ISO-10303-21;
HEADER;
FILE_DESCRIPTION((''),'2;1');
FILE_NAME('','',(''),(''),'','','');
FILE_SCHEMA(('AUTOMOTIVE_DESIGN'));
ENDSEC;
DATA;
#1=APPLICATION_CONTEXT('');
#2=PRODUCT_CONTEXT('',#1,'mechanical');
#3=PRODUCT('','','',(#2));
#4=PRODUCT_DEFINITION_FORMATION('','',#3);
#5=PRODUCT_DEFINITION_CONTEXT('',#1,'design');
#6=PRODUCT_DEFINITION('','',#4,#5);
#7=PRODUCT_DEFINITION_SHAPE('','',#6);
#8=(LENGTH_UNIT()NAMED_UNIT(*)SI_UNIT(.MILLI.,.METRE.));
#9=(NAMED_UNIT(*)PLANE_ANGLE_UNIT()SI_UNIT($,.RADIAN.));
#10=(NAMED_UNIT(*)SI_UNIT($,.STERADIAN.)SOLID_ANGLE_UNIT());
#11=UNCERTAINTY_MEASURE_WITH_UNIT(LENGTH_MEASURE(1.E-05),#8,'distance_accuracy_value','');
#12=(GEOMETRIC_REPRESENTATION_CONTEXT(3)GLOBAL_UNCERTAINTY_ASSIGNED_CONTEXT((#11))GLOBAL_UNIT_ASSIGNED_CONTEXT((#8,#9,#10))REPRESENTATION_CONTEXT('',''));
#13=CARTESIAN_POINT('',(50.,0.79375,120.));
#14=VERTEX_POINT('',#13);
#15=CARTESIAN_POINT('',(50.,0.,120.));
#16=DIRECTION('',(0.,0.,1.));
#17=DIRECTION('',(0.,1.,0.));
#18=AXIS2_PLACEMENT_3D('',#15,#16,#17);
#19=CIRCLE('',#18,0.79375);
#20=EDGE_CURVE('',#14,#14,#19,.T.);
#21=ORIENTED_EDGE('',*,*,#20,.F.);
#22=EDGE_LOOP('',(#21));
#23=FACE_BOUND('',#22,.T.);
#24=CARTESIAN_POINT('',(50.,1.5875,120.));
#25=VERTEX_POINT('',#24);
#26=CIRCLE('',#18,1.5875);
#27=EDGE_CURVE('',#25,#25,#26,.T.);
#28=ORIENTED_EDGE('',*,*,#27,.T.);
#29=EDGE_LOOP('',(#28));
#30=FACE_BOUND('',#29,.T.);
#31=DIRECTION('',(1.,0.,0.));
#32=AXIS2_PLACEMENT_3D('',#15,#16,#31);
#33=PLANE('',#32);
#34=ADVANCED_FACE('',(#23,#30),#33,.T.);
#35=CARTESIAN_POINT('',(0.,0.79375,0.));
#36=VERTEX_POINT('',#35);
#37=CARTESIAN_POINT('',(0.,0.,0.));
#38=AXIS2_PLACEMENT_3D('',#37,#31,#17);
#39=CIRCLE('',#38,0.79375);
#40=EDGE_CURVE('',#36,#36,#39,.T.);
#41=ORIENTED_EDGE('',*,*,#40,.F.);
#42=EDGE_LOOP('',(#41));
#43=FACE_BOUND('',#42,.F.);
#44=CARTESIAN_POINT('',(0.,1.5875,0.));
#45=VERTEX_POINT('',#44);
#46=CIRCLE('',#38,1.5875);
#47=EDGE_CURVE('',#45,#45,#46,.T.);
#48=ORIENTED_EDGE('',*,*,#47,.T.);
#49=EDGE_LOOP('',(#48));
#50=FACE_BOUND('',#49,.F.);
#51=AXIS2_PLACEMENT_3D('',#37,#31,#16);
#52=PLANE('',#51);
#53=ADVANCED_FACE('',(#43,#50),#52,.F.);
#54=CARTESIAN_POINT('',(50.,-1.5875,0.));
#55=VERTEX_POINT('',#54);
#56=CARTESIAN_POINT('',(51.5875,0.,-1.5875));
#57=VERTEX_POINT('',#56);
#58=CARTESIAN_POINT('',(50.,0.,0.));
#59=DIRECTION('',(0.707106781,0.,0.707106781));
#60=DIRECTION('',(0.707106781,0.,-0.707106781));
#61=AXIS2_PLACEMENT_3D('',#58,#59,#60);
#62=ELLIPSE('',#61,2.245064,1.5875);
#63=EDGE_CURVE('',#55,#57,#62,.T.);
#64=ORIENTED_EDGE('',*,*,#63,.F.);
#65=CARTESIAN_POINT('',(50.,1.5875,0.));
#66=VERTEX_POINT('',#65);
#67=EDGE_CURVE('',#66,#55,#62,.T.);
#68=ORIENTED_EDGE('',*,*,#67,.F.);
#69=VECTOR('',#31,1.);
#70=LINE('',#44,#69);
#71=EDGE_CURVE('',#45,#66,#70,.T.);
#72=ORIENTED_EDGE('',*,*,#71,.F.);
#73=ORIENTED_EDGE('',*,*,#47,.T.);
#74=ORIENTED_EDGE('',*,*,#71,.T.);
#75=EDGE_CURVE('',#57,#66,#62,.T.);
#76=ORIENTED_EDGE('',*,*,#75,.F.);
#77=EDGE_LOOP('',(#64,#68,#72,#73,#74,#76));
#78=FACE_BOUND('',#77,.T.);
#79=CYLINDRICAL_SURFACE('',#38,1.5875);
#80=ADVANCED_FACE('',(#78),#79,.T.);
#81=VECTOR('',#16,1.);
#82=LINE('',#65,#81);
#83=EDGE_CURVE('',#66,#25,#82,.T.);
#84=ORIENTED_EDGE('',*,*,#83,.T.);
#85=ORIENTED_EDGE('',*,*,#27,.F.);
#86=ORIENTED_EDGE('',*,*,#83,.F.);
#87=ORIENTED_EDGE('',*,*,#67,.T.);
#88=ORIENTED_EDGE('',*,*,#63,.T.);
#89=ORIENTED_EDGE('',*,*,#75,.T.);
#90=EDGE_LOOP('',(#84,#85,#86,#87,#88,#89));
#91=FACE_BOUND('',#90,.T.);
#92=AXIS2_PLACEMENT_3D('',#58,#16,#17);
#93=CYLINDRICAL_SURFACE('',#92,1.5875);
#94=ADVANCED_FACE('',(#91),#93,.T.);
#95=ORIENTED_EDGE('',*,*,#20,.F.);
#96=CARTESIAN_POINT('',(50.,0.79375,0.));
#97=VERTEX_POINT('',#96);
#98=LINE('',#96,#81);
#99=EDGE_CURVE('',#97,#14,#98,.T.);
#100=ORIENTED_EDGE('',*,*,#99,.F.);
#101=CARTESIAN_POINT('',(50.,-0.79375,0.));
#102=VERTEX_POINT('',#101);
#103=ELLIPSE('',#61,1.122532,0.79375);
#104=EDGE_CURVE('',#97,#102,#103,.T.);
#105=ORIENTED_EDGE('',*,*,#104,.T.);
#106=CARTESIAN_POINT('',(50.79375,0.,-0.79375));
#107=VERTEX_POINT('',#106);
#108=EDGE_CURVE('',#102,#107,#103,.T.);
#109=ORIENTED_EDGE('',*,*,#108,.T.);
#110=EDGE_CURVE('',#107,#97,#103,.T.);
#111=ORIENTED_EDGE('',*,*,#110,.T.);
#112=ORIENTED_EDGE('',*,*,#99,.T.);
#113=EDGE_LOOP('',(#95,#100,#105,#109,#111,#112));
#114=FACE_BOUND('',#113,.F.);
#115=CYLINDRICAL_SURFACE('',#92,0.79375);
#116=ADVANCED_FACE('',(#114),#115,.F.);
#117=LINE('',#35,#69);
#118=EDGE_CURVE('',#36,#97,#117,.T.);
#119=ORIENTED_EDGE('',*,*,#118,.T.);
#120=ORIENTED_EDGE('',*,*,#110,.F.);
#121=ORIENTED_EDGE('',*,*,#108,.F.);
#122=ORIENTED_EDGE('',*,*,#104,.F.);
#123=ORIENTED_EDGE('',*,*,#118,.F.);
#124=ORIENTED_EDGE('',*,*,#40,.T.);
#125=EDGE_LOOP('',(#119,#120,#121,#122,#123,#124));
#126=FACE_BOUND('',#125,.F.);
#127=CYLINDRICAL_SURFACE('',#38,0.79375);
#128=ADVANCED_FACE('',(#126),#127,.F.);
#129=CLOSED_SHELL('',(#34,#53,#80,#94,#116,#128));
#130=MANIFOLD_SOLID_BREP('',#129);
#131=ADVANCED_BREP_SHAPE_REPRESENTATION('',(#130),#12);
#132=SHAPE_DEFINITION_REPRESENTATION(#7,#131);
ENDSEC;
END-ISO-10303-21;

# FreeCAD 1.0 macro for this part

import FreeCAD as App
import Part
import Sketcher
from FreeCAD import Vector

doc = App.newDocument("Part")
params = doc.addObject("Spreadsheet::Sheet", "Params")
for row, (alias, value) in enumerate([
    ("sketch2_width", "50 mm"),
    ("sketch2_height", "120 mm"),
    ("sketch4_width", "50 mm"),
    ("sketch4_height", "120 mm"),
], start=1):
    params.set(f"A{row}", alias)
    params.set(f"B{row}", "=" + value)
    params.setAlias(f"B{row}", alias)

body = doc.addObject("PartDesign::Body", "Body")

# Sketch on YZ plane
sketch1 = body.newObject("Sketcher::SketchObject", "Sketch")
sketch1.AttachmentSupport = (doc.getObject("YZ_Plane"), [""])
sketch1.MapMode = "FlatFace"
sketch1.addGeometry(Part.Circle(Vector(0, 0, 0), Vector(0, 0, 1), 1.5875), False)
sketch1.addConstraint([
    Sketcher.Constraint("Coincident", 0, 3, -1, 1),
    Sketcher.Constraint("Diameter", 0, 3.175),
])

# Sketch on XZ plane
sketch2 = body.newObject("Sketcher::SketchObject", "Sketch001")
sketch2.AttachmentSupport = (doc.getObject("XZ_Plane"), [""])
sketch2.MapMode = "FlatFace"
sketch2.addGeometry([
    Part.LineSegment(Vector(0, 0, 0), Vector(50, 0, 0)),
    Part.LineSegment(Vector(50, 0, 0), Vector(50, 120, 0)),
], False)
sketch2.addConstraint([
    Sketcher.Constraint("Coincident", 0, 2, 1, 1),
    Sketcher.Constraint("Horizontal", 0),
    Sketcher.Constraint("Vertical", 1),
    Sketcher.Constraint("Coincident", 0, 1, -1, 1),
    Sketcher.Constraint("DistanceX", 0, 1, 0, 2, 50.0),
    Sketcher.Constraint("DistanceY", 1, 1, 1, 2, 120.0),
])
sketch2.setExpression("Constraints[4]", "Params.sketch2_width")
sketch2.setExpression("Constraints[5]", "Params.sketch2_height")
doc.recompute()

additivepipe = body.newObject("PartDesign::AdditivePipe", "AdditivePipe")
additivepipe.Profile = sketch1
additivepipe.Spine = (sketch2, ["Edge1", "Edge2"])
additivepipe.Transition = "Right corner"

# Sketch on YZ plane
sketch3 = body.newObject("Sketcher::SketchObject", "Sketch002")
sketch3.AttachmentSupport = (doc.getObject("YZ_Plane"), [""])
sketch3.MapMode = "FlatFace"
sketch3.addGeometry(Part.Circle(Vector(0, 0, 0), Vector(0, 0, 1), 0.79375), False)
sketch3.addConstraint([
    Sketcher.Constraint("Coincident", 0, 3, -1, 1),
    Sketcher.Constraint("Diameter", 0, 1.5875),
])

# Sketch on XZ plane
sketch4 = body.newObject("Sketcher::SketchObject", "Sketch003")
sketch4.AttachmentSupport = (doc.getObject("XZ_Plane"), [""])
sketch4.MapMode = "FlatFace"
sketch4.addGeometry([
    Part.LineSegment(Vector(0, 0, 0), Vector(50, 0, 0)),
    Part.LineSegment(Vector(50, 0, 0), Vector(50, 120, 0)),
], False)
sketch4.addConstraint([
    Sketcher.Constraint("Coincident", 0, 2, 1, 1),
    Sketcher.Constraint("Horizontal", 0),
    Sketcher.Constraint("Vertical", 1),
    Sketcher.Constraint("Coincident", 0, 1, -1, 1),
    Sketcher.Constraint("DistanceX", 0, 1, 0, 2, 50.0),
    Sketcher.Constraint("DistanceY", 1, 1, 1, 2, 120.0),
])
sketch4.setExpression("Constraints[4]", "Params.sketch4_width")
sketch4.setExpression("Constraints[5]", "Params.sketch4_height")
doc.recompute()

subtractivepipe = body.newObject("PartDesign::SubtractivePipe", "SubtractivePipe")
subtractivepipe.Profile = sketch3
subtractivepipe.Spine = (sketch4, ["Edge1", "Edge2"])
subtractivepipe.Transition = "Right corner"

doc.recompute()
